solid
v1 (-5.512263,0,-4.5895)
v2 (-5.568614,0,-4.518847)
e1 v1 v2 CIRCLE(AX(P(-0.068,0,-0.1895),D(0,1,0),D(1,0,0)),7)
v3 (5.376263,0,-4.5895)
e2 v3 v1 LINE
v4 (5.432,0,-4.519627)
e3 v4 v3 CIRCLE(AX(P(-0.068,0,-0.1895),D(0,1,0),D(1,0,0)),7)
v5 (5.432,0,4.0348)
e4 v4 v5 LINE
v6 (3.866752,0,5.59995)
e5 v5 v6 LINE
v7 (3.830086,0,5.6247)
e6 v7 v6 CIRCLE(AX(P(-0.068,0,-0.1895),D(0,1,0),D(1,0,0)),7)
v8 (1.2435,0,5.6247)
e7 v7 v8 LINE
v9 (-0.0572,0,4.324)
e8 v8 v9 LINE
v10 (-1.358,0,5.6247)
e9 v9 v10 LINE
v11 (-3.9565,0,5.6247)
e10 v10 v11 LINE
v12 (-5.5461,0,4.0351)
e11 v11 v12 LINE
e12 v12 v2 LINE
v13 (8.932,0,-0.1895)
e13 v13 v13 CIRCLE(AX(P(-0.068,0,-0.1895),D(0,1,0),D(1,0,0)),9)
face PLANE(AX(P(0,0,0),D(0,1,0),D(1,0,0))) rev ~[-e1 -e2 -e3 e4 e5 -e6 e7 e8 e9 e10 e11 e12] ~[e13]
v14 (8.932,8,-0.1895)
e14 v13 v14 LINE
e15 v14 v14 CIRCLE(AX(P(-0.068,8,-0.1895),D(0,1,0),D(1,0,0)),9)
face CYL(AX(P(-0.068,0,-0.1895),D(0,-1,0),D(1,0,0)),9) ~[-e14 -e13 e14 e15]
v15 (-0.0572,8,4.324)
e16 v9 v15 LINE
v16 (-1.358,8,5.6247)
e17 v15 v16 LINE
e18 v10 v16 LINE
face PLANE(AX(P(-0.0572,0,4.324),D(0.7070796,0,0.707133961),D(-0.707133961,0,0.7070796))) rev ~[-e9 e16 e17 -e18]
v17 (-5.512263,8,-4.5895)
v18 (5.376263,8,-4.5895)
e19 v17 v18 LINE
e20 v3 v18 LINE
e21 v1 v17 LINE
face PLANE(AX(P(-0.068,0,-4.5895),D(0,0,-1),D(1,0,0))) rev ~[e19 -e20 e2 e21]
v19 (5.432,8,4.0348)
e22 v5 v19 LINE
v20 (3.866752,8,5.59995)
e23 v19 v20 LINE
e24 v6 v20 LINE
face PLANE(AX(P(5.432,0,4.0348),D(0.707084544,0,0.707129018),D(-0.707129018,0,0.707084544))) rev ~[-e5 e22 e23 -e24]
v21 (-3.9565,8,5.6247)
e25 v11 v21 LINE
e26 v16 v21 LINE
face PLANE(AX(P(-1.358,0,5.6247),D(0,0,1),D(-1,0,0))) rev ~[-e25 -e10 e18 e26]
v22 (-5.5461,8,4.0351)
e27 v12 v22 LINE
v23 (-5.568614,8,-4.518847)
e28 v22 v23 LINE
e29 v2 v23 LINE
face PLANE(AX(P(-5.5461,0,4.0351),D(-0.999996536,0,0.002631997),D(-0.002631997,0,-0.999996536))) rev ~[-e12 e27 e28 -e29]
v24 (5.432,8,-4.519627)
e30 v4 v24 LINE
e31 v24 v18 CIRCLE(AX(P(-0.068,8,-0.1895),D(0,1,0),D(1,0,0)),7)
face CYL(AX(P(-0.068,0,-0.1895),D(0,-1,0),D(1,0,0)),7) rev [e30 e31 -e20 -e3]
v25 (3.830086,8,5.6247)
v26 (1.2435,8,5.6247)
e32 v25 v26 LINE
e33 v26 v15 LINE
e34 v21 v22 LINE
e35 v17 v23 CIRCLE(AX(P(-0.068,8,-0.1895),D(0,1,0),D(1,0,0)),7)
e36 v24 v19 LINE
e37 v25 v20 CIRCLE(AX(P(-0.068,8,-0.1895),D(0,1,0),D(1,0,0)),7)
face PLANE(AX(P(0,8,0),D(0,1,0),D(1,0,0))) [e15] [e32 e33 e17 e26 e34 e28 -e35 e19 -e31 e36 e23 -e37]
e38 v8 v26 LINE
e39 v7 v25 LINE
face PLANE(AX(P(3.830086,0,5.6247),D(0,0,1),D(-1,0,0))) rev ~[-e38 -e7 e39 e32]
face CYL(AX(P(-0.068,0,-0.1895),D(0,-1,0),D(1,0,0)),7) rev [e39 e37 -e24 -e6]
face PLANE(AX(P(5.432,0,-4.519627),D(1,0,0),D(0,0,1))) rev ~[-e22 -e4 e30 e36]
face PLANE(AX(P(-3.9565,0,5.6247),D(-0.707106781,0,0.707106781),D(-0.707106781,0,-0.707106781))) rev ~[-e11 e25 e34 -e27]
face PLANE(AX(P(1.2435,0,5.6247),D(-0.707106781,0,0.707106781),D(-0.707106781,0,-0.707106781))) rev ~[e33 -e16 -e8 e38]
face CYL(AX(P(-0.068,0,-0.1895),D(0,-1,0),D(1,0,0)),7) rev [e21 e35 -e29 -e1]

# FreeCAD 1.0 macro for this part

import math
import FreeCAD as App
import Part
import Sketcher
Q = App.Units.Quantity

doc = App.newDocument("Part")
body = doc.addObject("PartDesign::Body", "Body")

sketch1 = body.newObject("Sketcher::SketchObject", "Sketch")
sketch1.AttachmentSupport = (doc.getObject("XZ_Plane"), [""])
sketch1.MapMode = "FlatFace"
sketch1.addGeometry(Part.Circle(App.Vector(-0.068, -0.19, 0), App.Vector(0, 0, 1), 9), False)
sketch1.addGeometry(Part.LineSegment(App.Vector(5.432, 4.035, 0), App.Vector(3.867, 5.6, 0)), False)
sketch1.addGeometry(Part.ArcOfCircle(Part.Circle(App.Vector(-0.068, -0.19, 0), App.Vector(0, 0, 1), 7), math.radians(55.8), math.radians(56.16)), False)
sketch1.addGeometry(Part.LineSegment(App.Vector(3.83, 5.625, 0), App.Vector(1.244, 5.625, 0)), False)
sketch1.addGeometry(Part.LineSegment(App.Vector(1.244, 5.625, 0), App.Vector(-0.057, 4.324, 0)), False)
sketch1.addGeometry(Part.LineSegment(App.Vector(-0.057, 4.324, 0), App.Vector(-1.358, 5.625, 0)), False)
sketch1.addGeometry(Part.LineSegment(App.Vector(-1.358, 5.625, 0), App.Vector(-3.957, 5.625, 0)), False)
sketch1.addGeometry(Part.LineSegment(App.Vector(-3.957, 5.625, 0), App.Vector(-5.546, 4.035, 0)), False)
sketch1.addGeometry(Part.LineSegment(App.Vector(-5.546, 4.035, 0), App.Vector(-5.569, -4.519, 0)), False)
sketch1.addGeometry(Part.ArcOfCircle(Part.Circle(App.Vector(-0.068, -0.19, 0), App.Vector(0, 0, 1), 7), math.radians(-141.79), math.radians(-141.06)), False)
sketch1.addGeometry(Part.LineSegment(App.Vector(-5.512, -4.59, 0), App.Vector(5.376, -4.59, 0)), False)
sketch1.addGeometry(Part.ArcOfCircle(Part.Circle(App.Vector(-0.068, -0.19, 0), App.Vector(0, 0, 1), 7), math.radians(-38.94), math.radians(-38.21)), False)
sketch1.addGeometry(Part.LineSegment(App.Vector(5.432, -4.52, 0), App.Vector(5.432, 4.035, 0)), False)
sketch1.addConstraint(Sketcher.Constraint("Coincident", 1, 2, 2, 1))
sketch1.addConstraint(Sketcher.Constraint("Coincident", 2, 2, 3, 1))
sketch1.addConstraint(Sketcher.Constraint("Coincident", 3, 2, 4, 1))
sketch1.addConstraint(Sketcher.Constraint("Coincident", 4, 2, 5, 1))
sketch1.addConstraint(Sketcher.Constraint("Coincident", 5, 2, 6, 1))
sketch1.addConstraint(Sketcher.Constraint("Coincident", 6, 2, 7, 1))
sketch1.addConstraint(Sketcher.Constraint("Coincident", 7, 2, 8, 1))
sketch1.addConstraint(Sketcher.Constraint("Coincident", 8, 2, 9, 1))
sketch1.addConstraint(Sketcher.Constraint("Coincident", 9, 2, 10, 1))
sketch1.addConstraint(Sketcher.Constraint("Coincident", 10, 2, 11, 1))
sketch1.addConstraint(Sketcher.Constraint("Coincident", 11, 2, 12, 1))
sketch1.addConstraint(Sketcher.Constraint("Coincident", 12, 2, 1, 1))
sketch1.addConstraint(Sketcher.Constraint("Horizontal", 3))
sketch1.addConstraint(Sketcher.Constraint("Horizontal", 6))
sketch1.addConstraint(Sketcher.Constraint("Horizontal", 10))
sketch1.addConstraint(Sketcher.Constraint("Vertical", 12))
sketch1.addConstraint(Sketcher.Constraint("Coincident", 2, 3, 0, 3))
sketch1.addConstraint(Sketcher.Constraint("Coincident", 9, 3, 0, 3))
sketch1.addConstraint(Sketcher.Constraint("Coincident", 11, 3, 0, 3))
sketch1.addConstraint(Sketcher.Constraint("Equal", 2, 9))
sketch1.addConstraint(Sketcher.Constraint("Equal", 9, 11))
sketch1.addConstraint(Sketcher.Constraint("Perpendicular", 1, 4))
sketch1.addConstraint(Sketcher.Constraint("Perpendicular", 4, 5))
sketch1.addConstraint(Sketcher.Constraint("Perpendicular", 5, 7))
sketch1.addConstraint(Sketcher.Constraint("Horizontal", 3, 2, 5, 2))
sketch1.addConstraint(Sketcher.Constraint("Equal", 4, 5))
sketch1.addConstraint(Sketcher.Constraint("Diameter", 0, 18.0))
sketch1.addConstraint(Sketcher.Constraint("Radius", 2, 7.0))
sketch1.addConstraint(Sketcher.Constraint("DistanceX", 6, 2, 3, 2, 5.2))
sketch1.addConstraint(Sketcher.Constraint("DistanceY", -1, 1, 1, 2, 5.6))
sketch1.addConstraint(Sketcher.Constraint("Angle", 8, Q("-90.1508 deg")))
sketch1.addConstraint(Sketcher.Constraint("DistanceY", 9, 2, 0, 3, 4.4))
sketch1.addConstraint(Sketcher.Constraint("DistanceX", 0, 3, 11, 2, 5.5))
sketch1.addConstraint(Sketcher.Constraint("DistanceX", -1, 1, 2, 2, 3.83))
sketch1.addConstraint(Sketcher.Constraint("DistanceX", 5, 2, 0, 3, 1.29))
sketch1.addConstraint(Sketcher.Constraint("DistanceY", 12, 2, 2, 2, 1.59))
sketch1.addConstraint(Sketcher.Constraint("Distance", 7, 2.248))
sketch1.addConstraint(Sketcher.Constraint("Distance", 8, 8.554))
sketch1.addConstraint(Sketcher.Constraint("DistanceX", 3, 2, 3, 1, 2.5866))
pad1 = body.newObject("PartDesign::Pad", "Pad")
pad1.Profile = sketch1
pad1.Length = 8
pad1.Reversed = True

doc.recompute()
